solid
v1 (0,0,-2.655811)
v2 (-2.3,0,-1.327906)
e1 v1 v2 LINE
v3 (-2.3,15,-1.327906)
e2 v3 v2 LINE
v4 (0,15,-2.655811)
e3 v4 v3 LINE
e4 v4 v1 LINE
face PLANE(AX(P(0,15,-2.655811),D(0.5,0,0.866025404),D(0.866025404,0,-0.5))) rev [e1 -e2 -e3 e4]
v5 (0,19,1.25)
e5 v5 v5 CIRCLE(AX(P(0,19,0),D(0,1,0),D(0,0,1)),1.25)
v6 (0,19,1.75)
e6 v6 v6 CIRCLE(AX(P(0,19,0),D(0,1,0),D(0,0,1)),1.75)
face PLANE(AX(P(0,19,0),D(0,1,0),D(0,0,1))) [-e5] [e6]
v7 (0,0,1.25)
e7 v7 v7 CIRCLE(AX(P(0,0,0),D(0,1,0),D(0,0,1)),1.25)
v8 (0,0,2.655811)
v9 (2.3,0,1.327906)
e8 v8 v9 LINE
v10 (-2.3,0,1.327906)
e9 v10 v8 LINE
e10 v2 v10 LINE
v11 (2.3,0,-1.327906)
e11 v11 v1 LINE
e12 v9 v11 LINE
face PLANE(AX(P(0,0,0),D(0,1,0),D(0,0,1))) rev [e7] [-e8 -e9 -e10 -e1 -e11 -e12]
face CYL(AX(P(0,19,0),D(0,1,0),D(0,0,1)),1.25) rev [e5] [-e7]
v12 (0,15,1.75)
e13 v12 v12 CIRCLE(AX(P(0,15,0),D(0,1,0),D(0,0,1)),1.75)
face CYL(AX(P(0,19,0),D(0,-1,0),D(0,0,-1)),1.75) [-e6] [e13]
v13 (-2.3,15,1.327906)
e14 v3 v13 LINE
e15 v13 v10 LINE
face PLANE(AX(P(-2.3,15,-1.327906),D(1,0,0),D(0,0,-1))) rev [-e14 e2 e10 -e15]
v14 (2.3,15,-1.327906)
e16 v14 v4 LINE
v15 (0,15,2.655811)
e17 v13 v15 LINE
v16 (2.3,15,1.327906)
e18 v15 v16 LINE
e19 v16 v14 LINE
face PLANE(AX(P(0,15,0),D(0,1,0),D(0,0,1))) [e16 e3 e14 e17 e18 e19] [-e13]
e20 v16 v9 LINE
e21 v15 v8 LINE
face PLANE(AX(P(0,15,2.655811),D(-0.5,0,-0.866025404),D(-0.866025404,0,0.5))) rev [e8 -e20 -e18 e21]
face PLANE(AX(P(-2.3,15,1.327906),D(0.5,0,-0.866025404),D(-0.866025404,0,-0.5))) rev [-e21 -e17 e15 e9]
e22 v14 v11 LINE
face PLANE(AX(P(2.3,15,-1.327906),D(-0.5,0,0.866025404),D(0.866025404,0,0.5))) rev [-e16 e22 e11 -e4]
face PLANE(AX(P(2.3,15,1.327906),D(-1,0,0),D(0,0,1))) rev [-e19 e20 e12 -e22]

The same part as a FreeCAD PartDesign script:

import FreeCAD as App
import Part
import Sketcher
Q = App.Units.Quantity


def add_polygon(sketch, points):
    """Adds a closed chain of lines whose ends are joined by coincident constraints."""
    first, n = sketch.GeometryCount, len(points)
    for a, b in zip(points, points[1:] + points[:1]):
        sketch.addGeometry(Part.LineSegment(App.Vector(*a, 0), App.Vector(*b, 0)), False)
    for i in range(n):
        sketch.addConstraint(Sketcher.Constraint("Coincident", first + i, 2, first + (i + 1) % n, 1))

doc = App.newDocument("Part")
params = doc.addObject("Spreadsheet::Sheet", "Params")
for row, (alias, value) in enumerate([
    ("pad1_length", "15 mm"),
    ("sketch2_diameter", "3.5 mm"),
    ("pad2_length", "4 mm"),
    ("sketch3_diameter", "2.5 mm"),
    ("hole_diameter", "2.5 mm"),
], start=1):
    params.set(f"A{row}", alias)
    params.set(f"B{row}", "=" + value)
    params.setAlias(f"B{row}", alias)

body = doc.addObject("PartDesign::Body", "Body")

# Sketch on XZ plane
sketch1 = doc.addObject("Sketcher::SketchObject", "Sketch")
body.addObject(sketch1)
sketch1.AttachmentSupport = (doc.XZ_Plane, [""])
sketch1.MapMode = "FlatFace"
add_polygon(sketch1, [(0, -2.655811), (-2.3, -1.327906), (-2.3, 1.327906), (0, 2.655811), (2.3, 1.327906), (2.3, -1.327906)])  # lines 0-5
sketch1.addConstraint(Sketcher.Constraint("Vertical", 1))
sketch1.addConstraint(Sketcher.Constraint("Vertical", 4))
sketch1.addConstraint(Sketcher.Constraint("Symmetric", 0, 2, 3, 2, -1, 1))
sketch1.addConstraint(Sketcher.Constraint("Symmetric", 2, 2, 5, 2, -1, 1))
sketch1.addConstraint(Sketcher.Constraint("PointOnObject", 2, 2, -2))
sketch1.addConstraint(Sketcher.Constraint("Parallel", 2, 5))
sketch1.addConstraint(Sketcher.Constraint("Horizontal", 1, 2, 3, 2))
sketch1.addConstraint(Sketcher.Constraint("Angle", 0, Q("150 deg")))
sketch1.addConstraint(Sketcher.Constraint("DistanceX", 0, 2, -1, 1, Q("2.3 mm")))
sketch1.addConstraint(Sketcher.Constraint("DistanceY", 1, 1, 1, 2, Q("2.655811 mm")))
pad1 = doc.addObject("PartDesign::Pad", "Pad")
body.addObject(pad1)
pad1.Profile = sketch1
pad1.setExpression("Length", "Params.pad1_length")
pad1.Reversed = True

# Sketch on XZ plane
sketch2 = doc.addObject("Sketcher::SketchObject", "Sketch001")
body.addObject(sketch2)
sketch2.AttachmentSupport = (doc.XZ_Plane, [""])
sketch2.MapMode = "FlatFace"
sketch2.AttachmentOffset = App.Placement(App.Vector(0, 0, -15), App.Rotation())
sketch2.addGeometry(Part.Circle(App.Vector(0, 0, 0), App.Vector(0, 0, 1), 1.75), False)
sketch2.addConstraint(Sketcher.Constraint("Coincident", 0, 3, -1, 1))
sketch2.addConstraint(Sketcher.Constraint("Diameter", 0, Q("3.5 mm")))
sketch2.setExpression("Constraints[1]", "Params.sketch2_diameter")
pad2 = doc.addObject("PartDesign::Pad", "Pad001")
body.addObject(pad2)
pad2.Profile = sketch2
pad2.setExpression("Length", "Params.pad2_length")
pad2.Reversed = True

# Sketch on XZ plane
sketch3 = doc.addObject("Sketcher::SketchObject", "Sketch002")
body.addObject(sketch3)
sketch3.AttachmentSupport = (doc.XZ_Plane, [""])
sketch3.MapMode = "FlatFace"
sketch3.AttachmentOffset = App.Placement(App.Vector(0, 0, -19), App.Rotation())
sketch3.addGeometry(Part.Circle(App.Vector(0, 0, 0), App.Vector(0, 0, 1), 1.25), False)
sketch3.addConstraint(Sketcher.Constraint("Coincident", 0, 3, -1, 1))
sketch3.addConstraint(Sketcher.Constraint("Diameter", 0, Q("2.5 mm")))
sketch3.setExpression("Constraints[1]", "Params.sketch3_diameter")
doc.recompute()
hole = doc.addObject("PartDesign::Hole", "Hole")
body.addObject(hole)
hole.Profile = sketch3
hole.ThreadType = "None"
hole.setExpression("Diameter", "Params.hole_diameter")
hole.DepthType = "ThroughAll"
hole.Reversed = True

doc.recompute()
